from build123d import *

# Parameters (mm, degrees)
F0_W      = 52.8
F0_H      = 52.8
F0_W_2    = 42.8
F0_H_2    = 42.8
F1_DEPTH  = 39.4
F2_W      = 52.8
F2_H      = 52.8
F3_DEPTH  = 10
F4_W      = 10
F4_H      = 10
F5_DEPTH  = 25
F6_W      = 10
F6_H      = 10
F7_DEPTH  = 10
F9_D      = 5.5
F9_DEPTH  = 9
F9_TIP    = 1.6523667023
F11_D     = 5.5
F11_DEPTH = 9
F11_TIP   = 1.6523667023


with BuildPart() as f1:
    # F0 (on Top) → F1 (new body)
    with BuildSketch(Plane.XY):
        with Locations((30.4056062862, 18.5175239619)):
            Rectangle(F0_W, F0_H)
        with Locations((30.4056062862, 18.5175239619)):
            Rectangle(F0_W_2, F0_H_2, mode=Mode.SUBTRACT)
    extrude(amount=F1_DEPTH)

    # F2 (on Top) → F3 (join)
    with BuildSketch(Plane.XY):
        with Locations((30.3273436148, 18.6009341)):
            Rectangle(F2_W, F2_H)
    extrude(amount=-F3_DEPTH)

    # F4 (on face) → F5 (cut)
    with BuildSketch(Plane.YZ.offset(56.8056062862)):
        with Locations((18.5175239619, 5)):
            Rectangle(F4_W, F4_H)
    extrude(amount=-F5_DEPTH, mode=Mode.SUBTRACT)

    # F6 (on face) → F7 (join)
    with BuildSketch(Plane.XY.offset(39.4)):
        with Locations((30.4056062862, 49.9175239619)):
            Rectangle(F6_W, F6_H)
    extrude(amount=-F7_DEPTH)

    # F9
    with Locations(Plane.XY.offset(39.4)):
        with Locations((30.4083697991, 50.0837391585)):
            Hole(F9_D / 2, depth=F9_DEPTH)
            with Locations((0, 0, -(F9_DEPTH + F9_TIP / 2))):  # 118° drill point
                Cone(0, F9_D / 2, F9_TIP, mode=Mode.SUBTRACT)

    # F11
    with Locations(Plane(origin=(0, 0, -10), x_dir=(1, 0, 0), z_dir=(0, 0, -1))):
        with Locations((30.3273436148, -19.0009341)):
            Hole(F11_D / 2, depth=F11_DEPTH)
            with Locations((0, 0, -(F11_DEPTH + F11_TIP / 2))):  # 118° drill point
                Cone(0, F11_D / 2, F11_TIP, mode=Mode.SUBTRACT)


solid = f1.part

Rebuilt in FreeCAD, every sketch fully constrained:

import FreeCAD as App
import Part
import Sketcher

V = App.Vector


def add_polygon(sketch, points):
    """Adds a closed chain of lines whose ends are joined by coincident constraints."""
    first, n = sketch.GeometryCount, len(points)
    for a, b in zip(points, points[1:] + points[:1]):
        sketch.addGeometry(Part.LineSegment(App.Vector(*a, 0), App.Vector(*b, 0)), False)
    for i in range(n):
        sketch.addConstraint(Sketcher.Constraint("Coincident", first + i, 2, first + (i + 1) % n, 1))

doc = App.newDocument("Part")
params = doc.addObject("Spreadsheet::Sheet", "Params")
for row, (alias, value) in enumerate([
    ("sketch1_width", "52.8 mm"),
    ("sketch1_width2", "42.8 mm"),
    ("pad1_length", "39.4 mm"),
    ("sketch2_width", "52.8 mm"),
    ("pad2_length", "10 mm"),
    ("sketch3_width", "10 mm"),
    ("pocket1_length", "25 mm"),
    ("sketch4_width", "10 mm"),
    ("pad3_length", "10 mm"),
    ("sketch5_diameter", "5.5 mm"),
    ("hole_diameter", "5.5 mm"),
    ("hole_depth", "9 mm"),
    ("sketch6_diameter", "5.5 mm"),
    ("hole2_diameter", "5.5 mm"),
    ("hole2_depth", "9 mm"),
], start=1):
    params.set(f"A{row}", alias)
    params.set(f"B{row}", "=" + value)
    params.setAlias(f"B{row}", alias)

body = doc.addObject("PartDesign::Body", "Body")

# Sketch on XY plane
sketch1 = doc.addObject("Sketcher::SketchObject", "Sketch")
body.addObject(sketch1)
sketch1.AttachmentSupport = (doc.XY_Plane, [""])
sketch1.MapMode = "FlatFace"
add_polygon(sketch1, [(4, 45), (4, -8), (57, -8), (57, 45)])  # lines 0-3
add_polygon(sketch1, [(52, -3), (9, -3), (9, 40), (52, 40)])  # lines 4-7
sketch1.addConstraint(Sketcher.Constraint("Vertical", 0))
sketch1.addConstraint(Sketcher.Constraint("Horizontal", 1))
sketch1.addConstraint(Sketcher.Constraint("Vertical", 2))
sketch1.addConstraint(Sketcher.Constraint("Horizontal", 3))
sketch1.addConstraint(Sketcher.Constraint("Horizontal", 4))
sketch1.addConstraint(Sketcher.Constraint("Vertical", 5))
sketch1.addConstraint(Sketcher.Constraint("Horizontal", 6))
sketch1.addConstraint(Sketcher.Constraint("Vertical", 7))
sketch1.addConstraint(Sketcher.Constraint("Equal", 3, 0))
sketch1.addConstraint(Sketcher.Constraint("Equal", 6, 5))
sketch1.addConstraint(Sketcher.Constraint("DistanceX", 1, 1, 1, 2, 52.8))
sketch1.addConstraint(Sketcher.Constraint("DistanceX", 4, 2, 4, 1, 42.8))
sketch1.addConstraint(Sketcher.Constraint("DistanceX", 0, 2, 4, 2, 5.0))
sketch1.addConstraint(Sketcher.Constraint("DistanceY", 0, 2, 4, 2, 5.0))
sketch1.addConstraint(Sketcher.Constraint("DistanceX", -1, 1, 0, 2, 4.005606))
sketch1.addConstraint(Sketcher.Constraint("DistanceY", 0, 2, -1, 1, 7.882476))
sketch1.setExpression("Constraints[18]", "Params.sketch1_width")
sketch1.setExpression("Constraints[19]", "Params.sketch1_width2")
pad1 = doc.addObject("PartDesign::Pad", "Pad")
body.addObject(pad1)
pad1.Profile = sketch1
pad1.setExpression("Length", "Params.pad1_length")

# Sketch on XY plane
sketch2 = doc.addObject("Sketcher::SketchObject", "Sketch001")
body.addObject(sketch2)
sketch2.AttachmentSupport = (doc.XY_Plane, [""])
sketch2.MapMode = "FlatFace"
add_polygon(sketch2, [(4, 45), (4, -8), (57, -8), (57, 45)])  # lines 0-3
sketch2.addConstraint(Sketcher.Constraint("Vertical", 0))
sketch2.addConstraint(Sketcher.Constraint("Horizontal", 1))
sketch2.addConstraint(Sketcher.Constraint("Vertical", 2))
sketch2.addConstraint(Sketcher.Constraint("Horizontal", 3))
sketch2.addConstraint(Sketcher.Constraint("Equal", 3, 0))
sketch2.addConstraint(Sketcher.Constraint("DistanceX", 1, 1, 1, 2, 52.8))
sketch2.addConstraint(Sketcher.Constraint("DistanceX", -1, 1, 0, 2, 3.927344))
sketch2.addConstraint(Sketcher.Constraint("DistanceY", 0, 2, -1, 1, 7.799066))
sketch2.setExpression("Constraints[9]", "Params.sketch2_width")
pad2 = doc.addObject("PartDesign::Pad", "Pad001")
body.addObject(pad2)
pad2.Profile = sketch2
pad2.setExpression("Length", "Params.pad2_length")
pad2.Reversed = True

# Sketch on YZ plane
sketch3 = doc.addObject("Sketcher::SketchObject", "Sketch002")
body.addObject(sketch3)
sketch3.AttachmentSupport = (doc.YZ_Plane, [""])
sketch3.MapMode = "FlatFace"
sketch3.AttachmentOffset = App.Placement(V(0, 0, 56.805606), App.Rotation())
add_polygon(sketch3, [(14, 10), (14, 0), (24, 0), (24, 10)])  # lines 0-3
sketch3.addConstraint(Sketcher.Constraint("Vertical", 0))
sketch3.addConstraint(Sketcher.Constraint("Horizontal", 1))
sketch3.addConstraint(Sketcher.Constraint("Vertical", 2))
sketch3.addConstraint(Sketcher.Constraint("Horizontal", 3))
sketch3.addConstraint(Sketcher.Constraint("PointOnObject", 0, 2, -1))
sketch3.addConstraint(Sketcher.Constraint("Equal", 3, 0))
sketch3.addConstraint(Sketcher.Constraint("DistanceX", 1, 1, 1, 2, 10.0))
sketch3.addConstraint(Sketcher.Constraint("DistanceX", -1, 1, 0, 2, 13.517524))
sketch3.setExpression("Constraints[10]", "Params.sketch3_width")
pocket1 = doc.addObject("PartDesign::Pocket", "Pocket")
body.addObject(pocket1)
pocket1.Profile = sketch3
pocket1.setExpression("Length", "Params.pocket1_length")

# Sketch on XY plane
sketch4 = doc.addObject("Sketcher::SketchObject", "Sketch003")
body.addObject(sketch4)
sketch4.AttachmentSupport = (doc.XY_Plane, [""])
sketch4.MapMode = "FlatFace"
sketch4.AttachmentOffset = App.Placement(V(0, 0, 39.4), App.Rotation())
add_polygon(sketch4, [(25, 55), (25, 45), (35, 45), (35, 55)])  # lines 0-3
sketch4.addConstraint(Sketcher.Constraint("Vertical", 0))
sketch4.addConstraint(Sketcher.Constraint("Horizontal", 1))
sketch4.addConstraint(Sketcher.Constraint("Vertical", 2))
sketch4.addConstraint(Sketcher.Constraint("Horizontal", 3))
sketch4.addConstraint(Sketcher.Constraint("Equal", 3, 0))
sketch4.addConstraint(Sketcher.Constraint("DistanceX", 1, 1, 1, 2, 10.0))
sketch4.addConstraint(Sketcher.Constraint("DistanceX", -1, 1, 0, 2, 25.405606))
sketch4.addConstraint(Sketcher.Constraint("DistanceY", -1, 1, 0, 2, 44.917524))
sketch4.setExpression("Constraints[9]", "Params.sketch4_width")
pad3 = doc.addObject("PartDesign::Pad", "Pad002")
body.addObject(pad3)
pad3.Profile = sketch4
pad3.setExpression("Length", "Params.pad3_length")
pad3.Reversed = True

# Sketch on XY plane
sketch5 = doc.addObject("Sketcher::SketchObject", "Sketch004")
body.addObject(sketch5)
sketch5.AttachmentSupport = (doc.XY_Plane, [""])
sketch5.MapMode = "FlatFace"
sketch5.AttachmentOffset = App.Placement(V(0, 0, 39.4), App.Rotation())
sketch5.addGeometry(Part.Circle(V(30.4, 50.1, 0), V(0, 0, 1), 2.8), False)
sketch5.addConstraint(Sketcher.Constraint("Diameter", 0, 5.5))
sketch5.addConstraint(Sketcher.Constraint("DistanceX", -1, 1, 0, 3, 30.40837))
sketch5.addConstraint(Sketcher.Constraint("DistanceY", -1, 1, 0, 3, 50.083739))
sketch5.setExpression("Constraints[0]", "Params.sketch5_diameter")
doc.recompute()
hole = doc.addObject("PartDesign::Hole", "Hole")
body.addObject(hole)
hole.Profile = sketch5
hole.ThreadType = "None"
hole.setExpression("Diameter", "Params.hole_diameter")
hole.DepthType = "Dimension"
hole.setExpression("Depth", "Params.hole_depth")
hole.DrillPoint = "Angled"
hole.DrillPointAngle = 118

# Sketch on XY plane
sketch6 = doc.addObject("Sketcher::SketchObject", "Sketch005")
body.addObject(sketch6)
sketch6.AttachmentSupport = (doc.XY_Plane, [""])
sketch6.MapMode = "FlatFace"
sketch6.AttachmentOffset = App.Placement(V(0, 0, -10), App.Rotation())
sketch6.addGeometry(Part.Circle(V(30.3, 19, 0), V(0, 0, 1), 2.8), False)
sketch6.addConstraint(Sketcher.Constraint("Diameter", 0, 5.5))
sketch6.addConstraint(Sketcher.Constraint("DistanceX", -1, 1, 0, 3, 30.327344))
sketch6.addConstraint(Sketcher.Constraint("DistanceY", -1, 1, 0, 3, 19.000934))
sketch6.setExpression("Constraints[0]", "Params.sketch6_diameter")
doc.recompute()
hole2 = doc.addObject("PartDesign::Hole", "Hole001")
body.addObject(hole2)
hole2.Profile = sketch6
hole2.ThreadType = "None"
hole2.setExpression("Diameter", "Params.hole2_diameter")
hole2.DepthType = "Dimension"
hole2.setExpression("Depth", "Params.hole2_depth")
hole2.DrillPoint = "Angled"
hole2.DrillPointAngle = 118
hole2.Reversed = True

doc.recompute()
